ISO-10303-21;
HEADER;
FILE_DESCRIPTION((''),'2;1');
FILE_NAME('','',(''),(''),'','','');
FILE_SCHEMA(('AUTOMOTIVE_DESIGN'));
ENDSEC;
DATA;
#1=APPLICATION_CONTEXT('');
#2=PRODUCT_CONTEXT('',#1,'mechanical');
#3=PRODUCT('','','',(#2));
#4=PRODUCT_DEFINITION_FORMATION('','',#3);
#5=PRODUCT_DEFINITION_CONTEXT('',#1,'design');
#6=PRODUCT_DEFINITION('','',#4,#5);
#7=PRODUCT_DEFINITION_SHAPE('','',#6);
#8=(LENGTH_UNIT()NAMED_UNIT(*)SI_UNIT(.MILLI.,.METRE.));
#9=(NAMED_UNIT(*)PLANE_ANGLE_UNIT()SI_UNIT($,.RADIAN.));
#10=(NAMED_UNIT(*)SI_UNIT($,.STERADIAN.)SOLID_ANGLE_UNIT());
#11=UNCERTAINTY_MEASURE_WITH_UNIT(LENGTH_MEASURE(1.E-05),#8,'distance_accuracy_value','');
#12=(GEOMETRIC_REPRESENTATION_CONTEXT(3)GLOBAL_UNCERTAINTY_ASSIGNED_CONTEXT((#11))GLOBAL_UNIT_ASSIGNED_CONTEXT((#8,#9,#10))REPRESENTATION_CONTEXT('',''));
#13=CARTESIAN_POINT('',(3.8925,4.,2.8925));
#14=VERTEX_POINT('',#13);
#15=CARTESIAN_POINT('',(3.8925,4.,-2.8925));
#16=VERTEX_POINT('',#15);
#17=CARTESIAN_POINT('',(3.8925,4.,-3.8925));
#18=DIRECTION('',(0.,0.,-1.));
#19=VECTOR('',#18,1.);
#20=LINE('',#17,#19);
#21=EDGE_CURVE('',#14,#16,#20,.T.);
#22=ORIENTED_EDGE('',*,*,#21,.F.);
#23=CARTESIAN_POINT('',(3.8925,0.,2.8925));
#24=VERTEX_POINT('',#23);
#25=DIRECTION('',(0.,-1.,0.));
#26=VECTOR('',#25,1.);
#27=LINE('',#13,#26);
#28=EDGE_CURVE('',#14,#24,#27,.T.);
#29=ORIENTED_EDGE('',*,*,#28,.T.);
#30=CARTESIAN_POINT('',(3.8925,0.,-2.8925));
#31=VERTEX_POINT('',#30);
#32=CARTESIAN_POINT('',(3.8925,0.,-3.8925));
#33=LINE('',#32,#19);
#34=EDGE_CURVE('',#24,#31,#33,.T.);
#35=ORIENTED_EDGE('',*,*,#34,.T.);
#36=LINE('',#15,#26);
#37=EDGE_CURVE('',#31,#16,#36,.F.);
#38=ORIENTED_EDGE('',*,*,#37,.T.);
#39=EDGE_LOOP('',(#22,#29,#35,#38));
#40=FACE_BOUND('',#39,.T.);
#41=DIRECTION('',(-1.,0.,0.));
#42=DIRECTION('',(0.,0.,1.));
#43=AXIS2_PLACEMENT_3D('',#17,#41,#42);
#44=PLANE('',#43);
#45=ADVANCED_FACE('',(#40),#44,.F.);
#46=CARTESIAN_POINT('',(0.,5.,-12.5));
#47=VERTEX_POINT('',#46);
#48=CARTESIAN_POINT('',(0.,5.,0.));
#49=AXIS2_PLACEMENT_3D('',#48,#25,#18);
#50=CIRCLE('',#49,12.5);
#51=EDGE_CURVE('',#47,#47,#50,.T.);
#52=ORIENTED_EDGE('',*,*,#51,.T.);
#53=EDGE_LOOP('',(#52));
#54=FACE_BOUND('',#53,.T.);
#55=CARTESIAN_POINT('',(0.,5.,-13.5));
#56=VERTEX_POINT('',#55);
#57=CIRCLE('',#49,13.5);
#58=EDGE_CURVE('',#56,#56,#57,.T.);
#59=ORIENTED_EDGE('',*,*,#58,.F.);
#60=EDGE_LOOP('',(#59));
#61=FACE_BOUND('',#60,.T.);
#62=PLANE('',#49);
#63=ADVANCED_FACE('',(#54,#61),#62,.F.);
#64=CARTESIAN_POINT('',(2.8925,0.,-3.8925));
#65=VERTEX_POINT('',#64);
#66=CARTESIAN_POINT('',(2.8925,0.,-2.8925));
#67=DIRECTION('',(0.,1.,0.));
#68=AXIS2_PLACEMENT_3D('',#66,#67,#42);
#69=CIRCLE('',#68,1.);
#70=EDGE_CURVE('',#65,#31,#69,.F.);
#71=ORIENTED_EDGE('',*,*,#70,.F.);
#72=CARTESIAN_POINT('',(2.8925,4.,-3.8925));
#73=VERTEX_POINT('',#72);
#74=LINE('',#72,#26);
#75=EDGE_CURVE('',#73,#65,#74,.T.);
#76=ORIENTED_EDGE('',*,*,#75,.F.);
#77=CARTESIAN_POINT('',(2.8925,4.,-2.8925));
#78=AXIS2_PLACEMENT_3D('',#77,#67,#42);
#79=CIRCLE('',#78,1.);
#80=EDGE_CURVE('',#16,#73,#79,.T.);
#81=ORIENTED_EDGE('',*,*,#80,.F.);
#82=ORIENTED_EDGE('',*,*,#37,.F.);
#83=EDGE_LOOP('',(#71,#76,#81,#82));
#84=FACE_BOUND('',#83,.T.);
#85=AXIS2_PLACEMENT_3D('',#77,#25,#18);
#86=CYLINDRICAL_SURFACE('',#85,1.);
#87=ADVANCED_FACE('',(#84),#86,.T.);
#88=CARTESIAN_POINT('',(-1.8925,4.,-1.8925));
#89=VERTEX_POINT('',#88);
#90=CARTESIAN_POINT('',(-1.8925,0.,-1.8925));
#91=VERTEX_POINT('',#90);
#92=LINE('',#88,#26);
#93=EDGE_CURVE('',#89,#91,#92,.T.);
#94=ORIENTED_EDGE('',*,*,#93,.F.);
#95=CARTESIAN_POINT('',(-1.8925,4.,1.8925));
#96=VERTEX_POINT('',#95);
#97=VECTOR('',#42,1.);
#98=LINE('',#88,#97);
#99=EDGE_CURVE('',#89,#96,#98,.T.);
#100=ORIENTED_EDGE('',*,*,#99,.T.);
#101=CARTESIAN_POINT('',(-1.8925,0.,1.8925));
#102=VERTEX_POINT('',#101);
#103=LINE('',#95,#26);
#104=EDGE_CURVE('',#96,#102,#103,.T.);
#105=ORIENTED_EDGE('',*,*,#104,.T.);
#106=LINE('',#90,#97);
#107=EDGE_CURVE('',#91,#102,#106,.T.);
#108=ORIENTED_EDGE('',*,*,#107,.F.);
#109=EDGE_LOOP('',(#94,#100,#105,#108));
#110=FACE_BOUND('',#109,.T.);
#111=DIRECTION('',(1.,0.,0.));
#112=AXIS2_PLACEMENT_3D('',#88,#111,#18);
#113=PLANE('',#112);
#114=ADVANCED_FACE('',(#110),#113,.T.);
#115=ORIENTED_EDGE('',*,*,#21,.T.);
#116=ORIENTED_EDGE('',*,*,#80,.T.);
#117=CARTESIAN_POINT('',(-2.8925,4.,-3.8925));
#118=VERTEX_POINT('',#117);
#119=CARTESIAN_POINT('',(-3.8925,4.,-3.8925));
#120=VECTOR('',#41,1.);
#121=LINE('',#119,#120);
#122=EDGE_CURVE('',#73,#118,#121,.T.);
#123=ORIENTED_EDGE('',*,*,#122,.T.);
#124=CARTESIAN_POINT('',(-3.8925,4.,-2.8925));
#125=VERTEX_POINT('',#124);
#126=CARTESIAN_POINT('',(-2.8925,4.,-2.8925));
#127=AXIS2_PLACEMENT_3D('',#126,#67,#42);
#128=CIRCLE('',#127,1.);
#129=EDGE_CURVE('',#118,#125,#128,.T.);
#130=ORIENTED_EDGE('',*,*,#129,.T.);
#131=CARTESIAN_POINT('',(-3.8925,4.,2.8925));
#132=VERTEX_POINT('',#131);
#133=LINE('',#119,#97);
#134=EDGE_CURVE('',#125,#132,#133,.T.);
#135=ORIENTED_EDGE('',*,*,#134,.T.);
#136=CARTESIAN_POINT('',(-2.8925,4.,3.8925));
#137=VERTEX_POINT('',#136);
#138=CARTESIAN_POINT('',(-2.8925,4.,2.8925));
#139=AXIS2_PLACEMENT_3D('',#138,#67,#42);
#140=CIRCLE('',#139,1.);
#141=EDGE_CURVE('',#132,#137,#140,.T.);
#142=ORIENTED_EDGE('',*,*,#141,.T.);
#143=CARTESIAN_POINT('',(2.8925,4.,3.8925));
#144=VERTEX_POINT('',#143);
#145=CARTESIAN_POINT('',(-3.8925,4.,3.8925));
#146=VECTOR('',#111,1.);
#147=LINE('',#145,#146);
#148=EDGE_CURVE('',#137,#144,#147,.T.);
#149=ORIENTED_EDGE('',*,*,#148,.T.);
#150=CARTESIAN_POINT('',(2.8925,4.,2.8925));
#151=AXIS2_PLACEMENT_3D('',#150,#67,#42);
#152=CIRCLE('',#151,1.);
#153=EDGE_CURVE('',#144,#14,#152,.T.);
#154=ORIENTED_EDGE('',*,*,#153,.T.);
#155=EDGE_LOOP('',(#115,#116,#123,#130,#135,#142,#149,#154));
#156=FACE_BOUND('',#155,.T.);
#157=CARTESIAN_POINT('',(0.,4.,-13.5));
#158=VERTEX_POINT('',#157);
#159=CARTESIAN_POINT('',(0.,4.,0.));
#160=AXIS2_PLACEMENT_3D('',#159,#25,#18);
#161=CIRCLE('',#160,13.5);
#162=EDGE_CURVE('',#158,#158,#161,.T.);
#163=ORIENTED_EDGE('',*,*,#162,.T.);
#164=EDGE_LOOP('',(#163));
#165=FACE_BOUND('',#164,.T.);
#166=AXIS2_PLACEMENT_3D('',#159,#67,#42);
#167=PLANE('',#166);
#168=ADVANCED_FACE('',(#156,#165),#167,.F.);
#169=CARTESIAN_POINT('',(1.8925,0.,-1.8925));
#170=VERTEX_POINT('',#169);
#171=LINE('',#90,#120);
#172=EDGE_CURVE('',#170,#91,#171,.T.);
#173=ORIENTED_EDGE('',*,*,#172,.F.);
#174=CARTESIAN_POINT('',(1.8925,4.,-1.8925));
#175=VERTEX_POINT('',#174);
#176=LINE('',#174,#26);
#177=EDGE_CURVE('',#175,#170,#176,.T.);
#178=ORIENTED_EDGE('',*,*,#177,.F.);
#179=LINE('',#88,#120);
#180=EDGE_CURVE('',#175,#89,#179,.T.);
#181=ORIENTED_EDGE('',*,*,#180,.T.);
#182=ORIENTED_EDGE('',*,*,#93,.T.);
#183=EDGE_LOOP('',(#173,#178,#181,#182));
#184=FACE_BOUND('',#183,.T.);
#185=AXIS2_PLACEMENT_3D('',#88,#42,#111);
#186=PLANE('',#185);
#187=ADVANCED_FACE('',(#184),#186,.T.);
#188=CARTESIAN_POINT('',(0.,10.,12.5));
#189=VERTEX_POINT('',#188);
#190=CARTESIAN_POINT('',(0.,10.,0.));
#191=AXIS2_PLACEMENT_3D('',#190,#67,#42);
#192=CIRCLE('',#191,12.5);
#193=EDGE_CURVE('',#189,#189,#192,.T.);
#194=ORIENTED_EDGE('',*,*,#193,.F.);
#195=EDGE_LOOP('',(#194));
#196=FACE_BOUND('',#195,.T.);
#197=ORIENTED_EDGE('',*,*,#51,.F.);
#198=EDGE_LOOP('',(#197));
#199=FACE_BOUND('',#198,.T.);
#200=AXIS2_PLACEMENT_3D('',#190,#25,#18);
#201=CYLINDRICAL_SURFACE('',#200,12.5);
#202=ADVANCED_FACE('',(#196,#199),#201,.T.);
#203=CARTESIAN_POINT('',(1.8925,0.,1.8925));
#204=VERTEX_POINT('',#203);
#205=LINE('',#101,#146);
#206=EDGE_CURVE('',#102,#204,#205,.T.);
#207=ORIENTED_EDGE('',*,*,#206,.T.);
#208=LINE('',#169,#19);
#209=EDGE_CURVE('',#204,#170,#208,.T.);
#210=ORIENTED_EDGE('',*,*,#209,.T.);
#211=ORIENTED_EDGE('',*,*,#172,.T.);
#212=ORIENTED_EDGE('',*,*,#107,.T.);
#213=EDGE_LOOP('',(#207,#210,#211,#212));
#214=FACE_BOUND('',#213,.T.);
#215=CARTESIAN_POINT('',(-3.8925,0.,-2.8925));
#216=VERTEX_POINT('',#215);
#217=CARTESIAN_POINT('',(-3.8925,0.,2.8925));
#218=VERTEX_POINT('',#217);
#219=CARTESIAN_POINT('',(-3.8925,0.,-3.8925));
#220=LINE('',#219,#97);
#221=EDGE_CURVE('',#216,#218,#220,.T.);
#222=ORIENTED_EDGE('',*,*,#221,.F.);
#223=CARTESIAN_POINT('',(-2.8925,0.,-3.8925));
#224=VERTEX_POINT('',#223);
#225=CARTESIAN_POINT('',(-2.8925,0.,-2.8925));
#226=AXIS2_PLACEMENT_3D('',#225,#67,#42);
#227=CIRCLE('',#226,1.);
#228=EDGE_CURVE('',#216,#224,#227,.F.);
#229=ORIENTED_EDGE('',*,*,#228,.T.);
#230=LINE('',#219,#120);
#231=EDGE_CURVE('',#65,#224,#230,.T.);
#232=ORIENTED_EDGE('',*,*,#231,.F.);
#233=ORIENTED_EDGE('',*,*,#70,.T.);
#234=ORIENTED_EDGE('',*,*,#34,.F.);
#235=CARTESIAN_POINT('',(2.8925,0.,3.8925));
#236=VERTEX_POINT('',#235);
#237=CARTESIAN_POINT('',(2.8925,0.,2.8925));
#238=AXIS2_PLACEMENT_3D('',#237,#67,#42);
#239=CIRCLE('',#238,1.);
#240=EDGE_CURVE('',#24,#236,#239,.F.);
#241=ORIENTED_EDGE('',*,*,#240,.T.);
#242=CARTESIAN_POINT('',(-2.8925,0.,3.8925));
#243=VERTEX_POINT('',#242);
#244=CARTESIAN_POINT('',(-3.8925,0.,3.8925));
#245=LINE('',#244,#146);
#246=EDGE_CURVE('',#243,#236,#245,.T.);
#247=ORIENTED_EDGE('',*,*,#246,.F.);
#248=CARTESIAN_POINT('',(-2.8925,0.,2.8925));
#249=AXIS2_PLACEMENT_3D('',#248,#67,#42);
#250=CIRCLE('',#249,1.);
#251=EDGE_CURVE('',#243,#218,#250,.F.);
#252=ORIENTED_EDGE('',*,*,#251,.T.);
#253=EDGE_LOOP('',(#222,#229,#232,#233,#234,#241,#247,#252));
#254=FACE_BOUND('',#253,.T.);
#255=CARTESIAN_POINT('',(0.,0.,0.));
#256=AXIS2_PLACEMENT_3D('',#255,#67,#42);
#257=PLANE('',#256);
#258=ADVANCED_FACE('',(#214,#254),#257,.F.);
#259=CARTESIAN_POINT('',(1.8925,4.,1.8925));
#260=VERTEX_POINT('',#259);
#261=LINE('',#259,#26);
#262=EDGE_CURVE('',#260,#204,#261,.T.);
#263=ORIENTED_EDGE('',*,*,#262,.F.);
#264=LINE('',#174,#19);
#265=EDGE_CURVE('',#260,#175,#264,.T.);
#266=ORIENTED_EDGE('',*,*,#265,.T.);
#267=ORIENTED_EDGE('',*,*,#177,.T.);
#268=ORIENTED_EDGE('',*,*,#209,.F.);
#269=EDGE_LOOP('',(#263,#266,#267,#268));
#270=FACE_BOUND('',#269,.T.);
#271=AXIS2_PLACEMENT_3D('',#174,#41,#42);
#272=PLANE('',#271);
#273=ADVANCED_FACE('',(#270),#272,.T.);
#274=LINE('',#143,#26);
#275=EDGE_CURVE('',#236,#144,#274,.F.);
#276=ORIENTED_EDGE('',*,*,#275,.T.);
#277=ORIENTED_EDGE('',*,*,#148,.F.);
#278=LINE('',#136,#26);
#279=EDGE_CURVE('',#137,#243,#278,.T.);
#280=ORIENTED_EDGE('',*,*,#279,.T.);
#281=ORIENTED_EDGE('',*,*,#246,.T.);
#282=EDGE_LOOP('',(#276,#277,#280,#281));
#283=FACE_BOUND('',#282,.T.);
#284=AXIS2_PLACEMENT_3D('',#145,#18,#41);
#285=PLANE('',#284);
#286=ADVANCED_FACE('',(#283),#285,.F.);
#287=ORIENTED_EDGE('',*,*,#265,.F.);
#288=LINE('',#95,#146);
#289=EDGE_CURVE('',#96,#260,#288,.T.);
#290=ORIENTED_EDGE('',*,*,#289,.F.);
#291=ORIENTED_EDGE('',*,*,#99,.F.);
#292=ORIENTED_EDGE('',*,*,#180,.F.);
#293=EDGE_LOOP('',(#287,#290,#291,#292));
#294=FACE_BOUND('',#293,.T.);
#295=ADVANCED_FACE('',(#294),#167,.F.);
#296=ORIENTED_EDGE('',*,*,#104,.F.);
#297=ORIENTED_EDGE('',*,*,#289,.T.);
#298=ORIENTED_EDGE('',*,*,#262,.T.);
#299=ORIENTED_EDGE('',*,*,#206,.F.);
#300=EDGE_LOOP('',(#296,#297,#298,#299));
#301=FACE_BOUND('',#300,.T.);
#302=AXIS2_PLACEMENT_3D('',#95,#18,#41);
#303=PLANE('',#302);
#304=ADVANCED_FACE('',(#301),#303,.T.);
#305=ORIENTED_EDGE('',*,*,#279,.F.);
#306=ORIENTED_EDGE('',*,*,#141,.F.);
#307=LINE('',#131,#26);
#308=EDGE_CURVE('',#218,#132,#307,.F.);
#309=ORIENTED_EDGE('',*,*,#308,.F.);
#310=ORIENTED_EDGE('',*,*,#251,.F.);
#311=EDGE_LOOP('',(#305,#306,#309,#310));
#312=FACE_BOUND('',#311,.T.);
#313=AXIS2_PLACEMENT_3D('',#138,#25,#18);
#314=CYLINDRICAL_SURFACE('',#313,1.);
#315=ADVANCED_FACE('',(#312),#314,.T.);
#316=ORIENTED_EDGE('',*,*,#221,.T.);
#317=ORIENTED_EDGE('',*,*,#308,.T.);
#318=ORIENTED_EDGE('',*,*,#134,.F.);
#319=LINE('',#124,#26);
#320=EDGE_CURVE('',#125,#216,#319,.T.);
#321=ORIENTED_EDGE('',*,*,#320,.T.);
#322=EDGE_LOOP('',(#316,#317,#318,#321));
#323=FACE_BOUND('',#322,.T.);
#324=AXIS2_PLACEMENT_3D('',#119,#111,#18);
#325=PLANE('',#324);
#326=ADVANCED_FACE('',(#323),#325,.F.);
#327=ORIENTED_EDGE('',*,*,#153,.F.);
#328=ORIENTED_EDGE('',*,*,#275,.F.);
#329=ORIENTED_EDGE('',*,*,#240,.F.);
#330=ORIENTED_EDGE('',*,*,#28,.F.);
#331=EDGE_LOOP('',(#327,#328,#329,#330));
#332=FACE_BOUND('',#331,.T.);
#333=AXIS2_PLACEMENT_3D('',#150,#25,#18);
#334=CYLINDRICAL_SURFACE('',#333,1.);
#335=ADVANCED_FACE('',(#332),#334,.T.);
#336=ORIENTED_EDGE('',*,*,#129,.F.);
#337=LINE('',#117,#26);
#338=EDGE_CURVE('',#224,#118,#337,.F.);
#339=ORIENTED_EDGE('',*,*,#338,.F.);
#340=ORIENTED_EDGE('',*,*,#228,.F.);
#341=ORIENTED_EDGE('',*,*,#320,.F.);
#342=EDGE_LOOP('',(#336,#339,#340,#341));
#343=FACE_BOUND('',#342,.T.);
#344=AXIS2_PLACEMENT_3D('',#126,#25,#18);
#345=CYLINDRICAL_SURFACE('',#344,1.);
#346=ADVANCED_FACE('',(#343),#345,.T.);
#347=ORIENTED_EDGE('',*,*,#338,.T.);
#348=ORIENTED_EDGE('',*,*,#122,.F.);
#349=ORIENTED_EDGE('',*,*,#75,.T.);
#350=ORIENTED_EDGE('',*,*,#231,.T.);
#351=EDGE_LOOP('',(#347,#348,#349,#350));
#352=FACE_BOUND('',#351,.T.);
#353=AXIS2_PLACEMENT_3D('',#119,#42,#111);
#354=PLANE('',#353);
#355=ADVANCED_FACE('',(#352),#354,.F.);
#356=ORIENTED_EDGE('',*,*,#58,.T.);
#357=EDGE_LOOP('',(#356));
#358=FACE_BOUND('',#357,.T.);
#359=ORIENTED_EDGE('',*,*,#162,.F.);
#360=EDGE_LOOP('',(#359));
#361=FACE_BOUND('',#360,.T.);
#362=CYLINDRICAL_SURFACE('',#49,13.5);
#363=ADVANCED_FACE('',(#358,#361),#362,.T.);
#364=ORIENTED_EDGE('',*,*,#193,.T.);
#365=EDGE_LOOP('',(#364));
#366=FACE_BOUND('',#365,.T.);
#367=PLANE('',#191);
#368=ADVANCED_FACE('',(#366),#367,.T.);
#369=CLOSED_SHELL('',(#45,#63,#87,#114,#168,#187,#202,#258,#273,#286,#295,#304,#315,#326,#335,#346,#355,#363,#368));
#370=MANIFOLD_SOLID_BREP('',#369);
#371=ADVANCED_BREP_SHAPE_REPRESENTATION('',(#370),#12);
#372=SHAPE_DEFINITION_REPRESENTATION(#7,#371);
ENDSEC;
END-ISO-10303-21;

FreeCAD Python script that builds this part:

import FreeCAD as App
import Part
import Sketcher
from FreeCAD import Vector
Q = App.Units.Quantity


def edges_at(feature, points):
    """Names of the edges that pass closest to the given points."""
    edges = feature.Shape.Edges
    near = lambda p: min(range(len(edges)), key=lambda i: edges[i].distToShape(Part.Vertex(*p))[0])
    return sorted({f"Edge{near(p) + 1}" for p in points})

doc = App.newDocument("Part")
body = doc.addObject("PartDesign::Body", "Body")

# Sketch on XZ plane
sketch1 = body.newObject("Sketcher::SketchObject", "Sketch")
sketch1.AttachmentSupport = (doc.getObject("XZ_Plane"), [""])
sketch1.MapMode = "FlatFace"
sketch1.addGeometry([
    Part.LineSegment(Vector(-3.9, -3.9, 0), Vector(-3.9, 3.9, 0)),  # 0
    Part.LineSegment(Vector(-3.9, 3.9, 0), Vector(3.9, 3.9, 0)),  # 1
    Part.LineSegment(Vector(3.9, 3.9, 0), Vector(3.9, -3.9, 0)),  # 2
    Part.LineSegment(Vector(3.9, -3.9, 0), Vector(-3.9, -3.9, 0)),  # 3
    Part.LineSegment(Vector(1.9, 1.9, 0), Vector(-1.9, 1.9, 0)),  # 4
    Part.LineSegment(Vector(-1.9, 1.9, 0), Vector(-1.9, -1.9, 0)),  # 5
    Part.LineSegment(Vector(-1.9, -1.9, 0), Vector(1.9, -1.9, 0)),  # 6
    Part.LineSegment(Vector(1.9, -1.9, 0), Vector(1.9, 1.9, 0)),  # 7
], False)
sketch1.addConstraint([
    Sketcher.Constraint("Coincident", 0, 2, 1, 1),
    Sketcher.Constraint("Coincident", 1, 2, 2, 1),
    Sketcher.Constraint("Coincident", 2, 2, 3, 1),
    Sketcher.Constraint("Coincident", 3, 2, 0, 1),
    Sketcher.Constraint("Coincident", 4, 2, 5, 1),
    Sketcher.Constraint("Coincident", 5, 2, 6, 1),
    Sketcher.Constraint("Coincident", 6, 2, 7, 1),
    Sketcher.Constraint("Coincident", 7, 2, 4, 1),
    Sketcher.Constraint("Vertical", 0),
    Sketcher.Constraint("Horizontal", 1),
    Sketcher.Constraint("Vertical", 2),
    Sketcher.Constraint("Horizontal", 3),
    Sketcher.Constraint("Horizontal", 4),
    Sketcher.Constraint("Vertical", 5),
    Sketcher.Constraint("Horizontal", 6),
    Sketcher.Constraint("Vertical", 7),
    Sketcher.Constraint("Symmetric", 0, 2, 2, 2, -1, 1),
    Sketcher.Constraint("Symmetric", 4, 2, 6, 2, -1, 1),
    Sketcher.Constraint("Equal", 3, 0),
    Sketcher.Constraint("Equal", 6, 5),
    Sketcher.Constraint("DistanceX", 0, 2, 4, 2, Q("2 mm")),
    Sketcher.Constraint("DistanceX", 1, 1, 1, 2, Q("7.785 mm")),
])
pad1 = body.newObject("PartDesign::Pad", "Pad")
pad1.Profile = sketch1
pad1.Length = 4
pad1.Reversed = True

# Sketch on XZ plane
sketch2 = body.newObject("Sketcher::SketchObject", "Sketch001")
sketch2.AttachmentSupport = (doc.getObject("XZ_Plane"), [""])
sketch2.MapMode = "FlatFace"
sketch2.AttachmentOffset = App.Placement(Vector(0, 0, -4), App.Rotation())
sketch2.addGeometry(Part.Circle(Vector(0, 0, 0), Vector(0, 0, 1), 12), False)
sketch2.addConstraint([
    Sketcher.Constraint("Coincident", 0, 3, -1, 1),
    Sketcher.Constraint("Diameter", 0, Q("25 mm")),
])
pad2 = body.newObject("PartDesign::Pad", "Pad001")
pad2.Profile = sketch2
pad2.Length = 6
pad2.Reversed = True

# Sketch on XZ plane
sketch3 = body.newObject("Sketcher::SketchObject", "Sketch002")
sketch3.AttachmentSupport = (doc.getObject("XZ_Plane"), [""])
sketch3.MapMode = "FlatFace"
sketch3.AttachmentOffset = App.Placement(Vector(0, 0, -4), App.Rotation())
sketch3.addGeometry(Part.Circle(Vector(0, 0, 0), Vector(0, 0, 1), 14), False)
sketch3.addConstraint([
    Sketcher.Constraint("Coincident", 0, 3, -1, 1),
    Sketcher.Constraint("Diameter", 0, Q("27 mm")),
])
pad3 = body.newObject("PartDesign::Pad", "Pad002")
pad3.Profile = sketch3
pad3.Length = 1
pad3.Reversed = True
doc.recompute()

fillet = body.newObject("PartDesign::Fillet", "Fillet")
fillet.Base = (pad3, edges_at(pad3, [
    (3.893, 2, 3.893),
    (-3.893, 2, 3.893),
    (-3.893, 2, -3.893),
    (3.893, 2, -3.893),
]))
fillet.Radius = 1

doc.recompute()
